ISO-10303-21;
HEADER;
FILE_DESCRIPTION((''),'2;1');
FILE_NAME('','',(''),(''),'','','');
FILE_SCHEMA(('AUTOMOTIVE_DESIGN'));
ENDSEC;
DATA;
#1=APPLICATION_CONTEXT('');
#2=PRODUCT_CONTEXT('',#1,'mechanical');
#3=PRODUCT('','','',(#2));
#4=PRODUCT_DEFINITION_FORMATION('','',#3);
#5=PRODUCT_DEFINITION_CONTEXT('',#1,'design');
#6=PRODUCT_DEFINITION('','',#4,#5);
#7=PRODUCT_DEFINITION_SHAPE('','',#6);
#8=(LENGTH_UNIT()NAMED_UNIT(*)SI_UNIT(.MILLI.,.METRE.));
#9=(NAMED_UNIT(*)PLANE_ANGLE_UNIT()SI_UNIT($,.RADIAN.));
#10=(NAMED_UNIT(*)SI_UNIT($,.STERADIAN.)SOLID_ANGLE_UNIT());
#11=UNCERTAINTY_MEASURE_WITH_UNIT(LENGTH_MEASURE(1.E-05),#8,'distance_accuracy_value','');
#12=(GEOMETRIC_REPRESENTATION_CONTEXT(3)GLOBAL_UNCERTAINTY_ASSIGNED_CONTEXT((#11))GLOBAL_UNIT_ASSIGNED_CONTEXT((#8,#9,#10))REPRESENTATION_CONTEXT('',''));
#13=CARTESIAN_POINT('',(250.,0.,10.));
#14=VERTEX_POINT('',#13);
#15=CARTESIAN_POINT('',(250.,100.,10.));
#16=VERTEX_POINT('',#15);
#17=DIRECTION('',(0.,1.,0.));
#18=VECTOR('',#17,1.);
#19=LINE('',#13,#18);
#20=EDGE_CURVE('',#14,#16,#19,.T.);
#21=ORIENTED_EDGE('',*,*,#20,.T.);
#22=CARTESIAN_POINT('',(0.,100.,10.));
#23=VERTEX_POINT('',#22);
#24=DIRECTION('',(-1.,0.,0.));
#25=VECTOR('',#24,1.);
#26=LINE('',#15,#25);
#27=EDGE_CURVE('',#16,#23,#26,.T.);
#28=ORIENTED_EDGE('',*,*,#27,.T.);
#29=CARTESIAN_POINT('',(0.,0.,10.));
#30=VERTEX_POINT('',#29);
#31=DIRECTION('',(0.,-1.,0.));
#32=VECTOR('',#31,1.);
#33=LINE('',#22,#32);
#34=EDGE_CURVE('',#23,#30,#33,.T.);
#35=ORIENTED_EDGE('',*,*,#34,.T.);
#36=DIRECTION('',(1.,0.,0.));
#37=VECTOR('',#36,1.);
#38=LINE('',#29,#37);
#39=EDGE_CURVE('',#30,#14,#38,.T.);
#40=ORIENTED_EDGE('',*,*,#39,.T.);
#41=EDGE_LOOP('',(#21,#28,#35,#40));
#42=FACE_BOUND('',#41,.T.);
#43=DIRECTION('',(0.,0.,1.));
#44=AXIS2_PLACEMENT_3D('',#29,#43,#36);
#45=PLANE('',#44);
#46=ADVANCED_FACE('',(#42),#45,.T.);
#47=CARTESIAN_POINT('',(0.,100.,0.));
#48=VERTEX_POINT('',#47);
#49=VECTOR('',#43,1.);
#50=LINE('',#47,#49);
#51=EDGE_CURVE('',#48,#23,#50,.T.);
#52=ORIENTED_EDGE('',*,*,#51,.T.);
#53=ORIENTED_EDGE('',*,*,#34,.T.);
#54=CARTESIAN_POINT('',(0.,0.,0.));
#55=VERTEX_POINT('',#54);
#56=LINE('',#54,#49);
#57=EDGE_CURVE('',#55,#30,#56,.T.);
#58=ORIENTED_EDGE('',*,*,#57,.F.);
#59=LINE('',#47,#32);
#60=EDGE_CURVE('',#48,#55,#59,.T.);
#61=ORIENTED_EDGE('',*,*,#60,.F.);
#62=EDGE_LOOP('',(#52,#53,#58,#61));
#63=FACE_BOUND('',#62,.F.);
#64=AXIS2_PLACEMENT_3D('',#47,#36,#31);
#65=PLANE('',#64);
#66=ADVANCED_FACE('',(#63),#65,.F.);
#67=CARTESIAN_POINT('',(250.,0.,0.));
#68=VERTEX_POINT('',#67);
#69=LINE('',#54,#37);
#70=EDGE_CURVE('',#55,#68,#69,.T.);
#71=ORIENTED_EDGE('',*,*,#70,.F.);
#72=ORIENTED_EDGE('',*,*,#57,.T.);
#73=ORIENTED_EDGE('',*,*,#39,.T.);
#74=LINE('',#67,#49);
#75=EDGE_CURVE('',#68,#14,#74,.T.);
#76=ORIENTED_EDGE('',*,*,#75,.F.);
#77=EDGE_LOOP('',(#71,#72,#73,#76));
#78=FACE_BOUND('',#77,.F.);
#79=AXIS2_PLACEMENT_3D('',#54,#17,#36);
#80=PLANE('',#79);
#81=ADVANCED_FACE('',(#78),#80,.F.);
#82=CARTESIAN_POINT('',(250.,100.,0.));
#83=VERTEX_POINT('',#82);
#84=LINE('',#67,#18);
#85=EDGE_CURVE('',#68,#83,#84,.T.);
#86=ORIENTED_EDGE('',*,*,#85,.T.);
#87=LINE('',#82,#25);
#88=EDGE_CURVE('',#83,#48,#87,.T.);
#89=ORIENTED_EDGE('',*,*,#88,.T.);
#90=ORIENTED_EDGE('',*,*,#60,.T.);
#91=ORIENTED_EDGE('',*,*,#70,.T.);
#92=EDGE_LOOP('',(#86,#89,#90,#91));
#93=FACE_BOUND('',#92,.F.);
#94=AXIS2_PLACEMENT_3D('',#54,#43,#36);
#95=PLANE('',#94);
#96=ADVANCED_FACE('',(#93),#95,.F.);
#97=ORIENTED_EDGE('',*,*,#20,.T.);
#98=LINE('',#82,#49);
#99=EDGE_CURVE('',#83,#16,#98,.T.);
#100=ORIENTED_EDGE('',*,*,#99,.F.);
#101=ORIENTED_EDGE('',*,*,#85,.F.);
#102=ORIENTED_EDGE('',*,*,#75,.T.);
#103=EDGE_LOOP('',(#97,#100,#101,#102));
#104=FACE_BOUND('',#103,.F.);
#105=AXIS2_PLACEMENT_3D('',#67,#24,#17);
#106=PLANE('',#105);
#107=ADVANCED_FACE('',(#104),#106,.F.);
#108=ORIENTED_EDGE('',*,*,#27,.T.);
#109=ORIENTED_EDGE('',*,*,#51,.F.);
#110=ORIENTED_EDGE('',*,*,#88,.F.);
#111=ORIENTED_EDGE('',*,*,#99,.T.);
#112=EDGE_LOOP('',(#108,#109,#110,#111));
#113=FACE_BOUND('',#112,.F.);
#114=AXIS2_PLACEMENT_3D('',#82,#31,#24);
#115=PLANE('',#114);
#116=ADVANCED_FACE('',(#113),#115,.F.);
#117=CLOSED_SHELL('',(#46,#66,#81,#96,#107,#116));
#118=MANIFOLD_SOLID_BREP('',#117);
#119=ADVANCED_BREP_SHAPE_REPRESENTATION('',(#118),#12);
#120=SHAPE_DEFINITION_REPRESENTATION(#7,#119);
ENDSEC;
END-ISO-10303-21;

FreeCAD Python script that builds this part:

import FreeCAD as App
import Part
import Sketcher
from FreeCAD import Vector
Q = App.Units.Quantity


def add_polygon(sketch, points):
    """Adds a closed chain of lines whose ends are joined by coincident constraints."""
    first, n = sketch.GeometryCount, len(points)
    for a, b in zip(points, points[1:] + points[:1]):
        sketch.addGeometry(Part.LineSegment(App.Vector(*a, 0), App.Vector(*b, 0)), False)
    for i in range(n):
        sketch.addConstraint(Sketcher.Constraint("Coincident", first + i, 2, first + (i + 1) % n, 1))

doc = App.newDocument("Part")
body = doc.addObject("PartDesign::Body", "Body")

# Sketch on XY plane
sketch1 = doc.addObject("Sketcher::SketchObject", "Sketch")
body.addObject(sketch1)
sketch1.AttachmentSupport = (doc.XY_Plane, [""])
sketch1.MapMode = "FlatFace"
add_polygon(sketch1, [(0, 100), (0, 0), (250, 0), (250, 100)])  # lines 0-3
sketch1.addConstraint(Sketcher.Constraint("Vertical", 0))
sketch1.addConstraint(Sketcher.Constraint("Horizontal", 1))
sketch1.addConstraint(Sketcher.Constraint("Vertical", 2))
sketch1.addConstraint(Sketcher.Constraint("Horizontal", 3))
sketch1.addConstraint(Sketcher.Constraint("Coincident", 0, 2, -1, 1))
sketch1.addConstraint(Sketcher.Constraint("DistanceX", 1, 1, 1, 2, Q("250 mm")))
sketch1.addConstraint(Sketcher.Constraint("DistanceY", 0, 2, 0, 1, Q("100 mm")))
pad1 = doc.addObject("PartDesign::Pad", "Pad")
body.addObject(pad1)
pad1.Profile = sketch1
pad1.Length = 10

doc.recompute()
